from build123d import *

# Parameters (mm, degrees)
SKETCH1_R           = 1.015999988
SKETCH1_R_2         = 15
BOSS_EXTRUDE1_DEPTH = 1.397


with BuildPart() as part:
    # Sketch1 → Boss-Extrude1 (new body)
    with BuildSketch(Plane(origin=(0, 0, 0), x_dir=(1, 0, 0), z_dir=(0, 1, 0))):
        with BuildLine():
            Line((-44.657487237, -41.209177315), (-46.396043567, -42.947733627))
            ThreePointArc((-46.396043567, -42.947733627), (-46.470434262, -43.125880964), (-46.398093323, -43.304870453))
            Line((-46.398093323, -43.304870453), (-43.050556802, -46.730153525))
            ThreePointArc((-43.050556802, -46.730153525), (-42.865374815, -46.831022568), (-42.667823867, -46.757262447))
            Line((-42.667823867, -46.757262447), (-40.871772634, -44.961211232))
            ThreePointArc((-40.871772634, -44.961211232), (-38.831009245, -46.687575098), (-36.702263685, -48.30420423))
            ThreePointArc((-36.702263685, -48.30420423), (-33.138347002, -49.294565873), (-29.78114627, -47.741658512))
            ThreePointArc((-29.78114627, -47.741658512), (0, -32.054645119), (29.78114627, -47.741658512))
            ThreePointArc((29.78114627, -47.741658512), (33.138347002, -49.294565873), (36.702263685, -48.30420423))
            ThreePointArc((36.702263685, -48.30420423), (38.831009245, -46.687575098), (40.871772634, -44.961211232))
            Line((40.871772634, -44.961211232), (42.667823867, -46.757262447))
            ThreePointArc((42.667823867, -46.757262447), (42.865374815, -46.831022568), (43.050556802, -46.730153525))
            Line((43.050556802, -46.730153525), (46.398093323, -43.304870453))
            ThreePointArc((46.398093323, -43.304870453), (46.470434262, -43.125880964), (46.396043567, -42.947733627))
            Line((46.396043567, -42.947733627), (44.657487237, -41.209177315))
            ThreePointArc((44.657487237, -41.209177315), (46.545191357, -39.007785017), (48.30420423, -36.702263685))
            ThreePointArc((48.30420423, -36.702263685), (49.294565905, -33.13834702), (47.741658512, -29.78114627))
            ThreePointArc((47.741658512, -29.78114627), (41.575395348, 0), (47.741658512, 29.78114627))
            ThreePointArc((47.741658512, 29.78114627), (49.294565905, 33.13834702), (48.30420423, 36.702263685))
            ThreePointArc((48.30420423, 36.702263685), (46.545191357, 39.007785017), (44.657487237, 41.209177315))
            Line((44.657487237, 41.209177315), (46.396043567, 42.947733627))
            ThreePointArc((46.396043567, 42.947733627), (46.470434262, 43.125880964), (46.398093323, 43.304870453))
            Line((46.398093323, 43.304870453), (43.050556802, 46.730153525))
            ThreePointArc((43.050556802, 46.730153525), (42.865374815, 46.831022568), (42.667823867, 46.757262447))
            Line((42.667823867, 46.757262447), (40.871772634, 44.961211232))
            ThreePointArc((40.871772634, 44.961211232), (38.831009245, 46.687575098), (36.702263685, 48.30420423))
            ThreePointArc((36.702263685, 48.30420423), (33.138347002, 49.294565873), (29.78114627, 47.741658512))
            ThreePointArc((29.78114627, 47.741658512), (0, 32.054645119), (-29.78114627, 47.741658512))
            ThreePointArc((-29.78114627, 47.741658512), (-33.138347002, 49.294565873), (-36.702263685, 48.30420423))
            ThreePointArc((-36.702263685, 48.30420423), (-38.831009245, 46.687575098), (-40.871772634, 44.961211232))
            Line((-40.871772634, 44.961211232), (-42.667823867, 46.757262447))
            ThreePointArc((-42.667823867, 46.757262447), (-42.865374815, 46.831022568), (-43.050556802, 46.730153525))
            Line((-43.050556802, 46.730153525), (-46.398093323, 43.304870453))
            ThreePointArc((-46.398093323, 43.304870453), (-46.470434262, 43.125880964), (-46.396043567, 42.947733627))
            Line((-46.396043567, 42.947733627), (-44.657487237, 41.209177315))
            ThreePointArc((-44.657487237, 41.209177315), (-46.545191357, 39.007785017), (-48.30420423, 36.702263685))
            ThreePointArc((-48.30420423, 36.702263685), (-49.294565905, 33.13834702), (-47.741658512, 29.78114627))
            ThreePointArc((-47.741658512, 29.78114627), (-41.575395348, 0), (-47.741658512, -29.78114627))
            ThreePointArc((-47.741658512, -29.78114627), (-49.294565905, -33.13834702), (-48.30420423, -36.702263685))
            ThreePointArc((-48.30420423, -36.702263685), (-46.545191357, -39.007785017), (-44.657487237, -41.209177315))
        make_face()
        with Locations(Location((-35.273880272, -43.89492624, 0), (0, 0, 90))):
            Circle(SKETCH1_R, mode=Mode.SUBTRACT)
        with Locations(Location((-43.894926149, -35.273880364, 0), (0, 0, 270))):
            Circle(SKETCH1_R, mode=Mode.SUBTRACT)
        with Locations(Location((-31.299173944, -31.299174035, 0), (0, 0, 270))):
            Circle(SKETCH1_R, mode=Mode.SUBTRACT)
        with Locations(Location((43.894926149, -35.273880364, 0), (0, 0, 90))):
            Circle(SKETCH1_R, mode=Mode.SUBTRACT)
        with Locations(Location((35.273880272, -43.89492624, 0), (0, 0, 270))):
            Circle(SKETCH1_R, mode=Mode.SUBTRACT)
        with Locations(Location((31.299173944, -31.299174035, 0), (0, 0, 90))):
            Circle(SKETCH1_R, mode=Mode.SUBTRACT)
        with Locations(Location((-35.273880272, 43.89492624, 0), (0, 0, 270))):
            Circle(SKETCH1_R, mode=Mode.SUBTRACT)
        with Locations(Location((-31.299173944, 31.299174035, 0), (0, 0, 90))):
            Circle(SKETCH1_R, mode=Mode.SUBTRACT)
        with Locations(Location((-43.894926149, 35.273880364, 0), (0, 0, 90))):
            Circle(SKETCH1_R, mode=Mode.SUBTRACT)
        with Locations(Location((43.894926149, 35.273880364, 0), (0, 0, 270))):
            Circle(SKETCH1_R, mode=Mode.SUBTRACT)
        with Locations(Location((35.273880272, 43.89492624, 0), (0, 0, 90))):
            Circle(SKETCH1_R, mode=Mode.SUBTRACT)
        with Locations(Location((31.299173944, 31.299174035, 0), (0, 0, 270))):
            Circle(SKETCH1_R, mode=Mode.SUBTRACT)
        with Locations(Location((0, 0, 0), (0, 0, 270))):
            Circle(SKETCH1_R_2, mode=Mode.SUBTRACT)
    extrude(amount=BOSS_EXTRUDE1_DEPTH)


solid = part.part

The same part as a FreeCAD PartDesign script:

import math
import FreeCAD as App
import Part
import Sketcher
from FreeCAD import Vector
Q = App.Units.Quantity

doc = App.newDocument("Part")
body = doc.addObject("PartDesign::Body", "Body")

# Sketch on XZ plane
sketch1 = body.newObject("Sketcher::SketchObject", "Sketch")
sketch1.AttachmentSupport = (doc.getObject("XZ_Plane"), [""])
sketch1.MapMode = "FlatFace"
sketch1.addGeometry([
    Part.LineSegment(Vector(-44.66, 41.21, 0), Vector(-46.4, 42.95, 0)),  # 0
    Part.ArcOfCircle(Part.Circle(Vector(-46.22, 43.13, 0), Vector(0, 0, 1), 0.25), math.radians(136), math.radians(225)),  # 1
    Part.LineSegment(Vector(-46.4, 43.3, 0), Vector(-43.05, 46.73, 0)),  # 2
    Part.ArcOfCircle(Part.Circle(Vector(-42.85, 46.58, 0), Vector(0, 0, 1), 0.25), math.radians(45), math.radians(143)),  # 3
    Part.LineSegment(Vector(-42.67, 46.76, 0), Vector(-40.87, 44.96, 0)),  # 4
    Part.ArcOfCircle(Part.Circle(Vector(-7.05, 7.05, 0), Vector(0, 0, 1), 50.8), math.radians(125.71), math.radians(131.74)),  # 5
    Part.ArcOfCircle(Part.Circle(Vector(-33.57, 43.95, 0), Vector(0, 0, 1), 5.36), math.radians(45), math.radians(126)),  # 6
    Part.ArcOfCircle(Part.Circle(Vector(0, 68.17, 0), Vector(0, 0, 1), 36.11), math.radians(-146), math.radians(-34)),  # 7
    Part.ArcOfCircle(Part.Circle(Vector(33.57, 43.95, 0), Vector(0, 0, 1), 5.36), math.radians(54), math.radians(135)),  # 8
    Part.ArcOfCircle(Part.Circle(Vector(7.05, 7.05, 0), Vector(0, 0, 1), 50.8), math.radians(48.26), math.radians(54.29)),  # 9
    Part.LineSegment(Vector(40.87, 44.96, 0), Vector(42.67, 46.76, 0)),  # 10
    Part.ArcOfCircle(Part.Circle(Vector(42.85, 46.58, 0), Vector(0, 0, 1), 0.25), math.radians(37), math.radians(135)),  # 11
    Part.LineSegment(Vector(43.05, 46.73, 0), Vector(46.4, 43.3, 0)),  # 12
    Part.ArcOfCircle(Part.Circle(Vector(46.22, 43.13, 0), Vector(0, 0, 1), 0.25), math.radians(-45), math.radians(44)),  # 13
    Part.LineSegment(Vector(46.4, 42.95, 0), Vector(44.66, 41.21, 0)),  # 14
    Part.ArcOfCircle(Part.Circle(Vector(7.05, 7.05, 0), Vector(0, 0, 1), 50.8), math.radians(35.71), math.radians(42.25)),  # 15
    Part.ArcOfCircle(Part.Circle(Vector(43.95, 33.57, 0), Vector(0, 0, 1), 5.36), math.radians(-45), math.radians(36)),  # 16
    Part.ArcOfCircle(Part.Circle(Vector(116.58, 0, 0), Vector(0, 0, 1), 75), math.radians(157), math.radians(203)),  # 17
    Part.ArcOfCircle(Part.Circle(Vector(43.95, -33.57, 0), Vector(0, 0, 1), 5.36), math.radians(-36), math.radians(45)),  # 18
    Part.ArcOfCircle(Part.Circle(Vector(7.05, -7.05, 0), Vector(0, 0, 1), 50.8), math.radians(-42.25), math.radians(-35.71)),  # 19
    Part.LineSegment(Vector(44.66, -41.21, 0), Vector(46.4, -42.95, 0)),  # 20
    Part.ArcOfCircle(Part.Circle(Vector(46.22, -43.13, 0), Vector(0, 0, 1), 0.25), math.radians(-44), math.radians(45)),  # 21
    Part.LineSegment(Vector(46.4, -43.3, 0), Vector(43.05, -46.73, 0)),  # 22
    Part.ArcOfCircle(Part.Circle(Vector(42.85, -46.58, 0), Vector(0, 0, 1), 0.25), math.radians(-135), math.radians(-37)),  # 23
    Part.LineSegment(Vector(42.67, -46.76, 0), Vector(40.87, -44.96, 0)),  # 24
    Part.ArcOfCircle(Part.Circle(Vector(7.05, -7.05, 0), Vector(0, 0, 1), 50.8), math.radians(-54.29), math.radians(-48.26)),  # 25
    Part.ArcOfCircle(Part.Circle(Vector(33.57, -43.95, 0), Vector(0, 0, 1), 5.36), math.radians(-135), math.radians(-54)),  # 26
    Part.ArcOfCircle(Part.Circle(Vector(0, -68.17, 0), Vector(0, 0, 1), 36.11), math.radians(34), math.radians(146)),  # 27
    Part.ArcOfCircle(Part.Circle(Vector(-33.57, -43.95, 0), Vector(0, 0, 1), 5.36), math.radians(-126), math.radians(-45)),  # 28
    Part.ArcOfCircle(Part.Circle(Vector(-7.05, -7.05, 0), Vector(0, 0, 1), 50.8), math.radians(-131.74), math.radians(-125.71)),  # 29
    Part.LineSegment(Vector(-40.87, -44.96, 0), Vector(-42.67, -46.76, 0)),  # 30
    Part.ArcOfCircle(Part.Circle(Vector(-42.85, -46.58, 0), Vector(0, 0, 1), 0.25), math.radians(-143), math.radians(-45)),  # 31
    Part.LineSegment(Vector(-43.05, -46.73, 0), Vector(-46.4, -43.3, 0)),  # 32
    Part.ArcOfCircle(Part.Circle(Vector(-46.22, -43.13, 0), Vector(0, 0, 1), 0.25), math.radians(135), math.radians(224)),  # 33
    Part.LineSegment(Vector(-46.4, -42.95, 0), Vector(-44.66, -41.21, 0)),  # 34
    Part.ArcOfCircle(Part.Circle(Vector(-7.05, -7.05, 0), Vector(0, 0, 1), 50.8), math.radians(-144.29), math.radians(-137.75)),  # 35
    Part.ArcOfCircle(Part.Circle(Vector(-43.95, -33.57, 0), Vector(0, 0, 1), 5.36), math.radians(135), math.radians(216)),  # 36
    Part.ArcOfCircle(Part.Circle(Vector(-116.58, 0, 0), Vector(0, 0, 1), 75), math.radians(-23), math.radians(23)),  # 37
    Part.ArcOfCircle(Part.Circle(Vector(-43.95, 33.57, 0), Vector(0, 0, 1), 5.36), math.radians(144), math.radians(225)),  # 38
    Part.ArcOfCircle(Part.Circle(Vector(-7.05, 7.05, 0), Vector(0, 0, 1), 50.8), math.radians(137.75), math.radians(144.29)),  # 39
    Part.Circle(Vector(-35.27, 43.89, 0), Vector(0, 0, 1), 1.02),  # 40
    Part.Circle(Vector(-43.89, 35.27, 0), Vector(0, 0, 1), 1.02),  # 41
    Part.Circle(Vector(-31.3, 31.3, 0), Vector(0, 0, 1), 1.02),  # 42
    Part.Circle(Vector(35.27, 43.89, 0), Vector(0, 0, 1), 1.02),  # 43
    Part.Circle(Vector(43.89, 35.27, 0), Vector(0, 0, 1), 1.02),  # 44
    Part.Circle(Vector(31.3, 31.3, 0), Vector(0, 0, 1), 1.02),  # 45
    Part.Circle(Vector(-31.3, -31.3, 0), Vector(0, 0, 1), 1.02),  # 46
    Part.Circle(Vector(-43.89, -35.27, 0), Vector(0, 0, 1), 1.02),  # 47
    Part.Circle(Vector(-35.27, -43.89, 0), Vector(0, 0, 1), 1.02),  # 48
    Part.Circle(Vector(0, 0, 0), Vector(0, 0, 1), 15),  # 49
    Part.Circle(Vector(31.3, -31.3, 0), Vector(0, 0, 1), 1.02),  # 50
    Part.Circle(Vector(43.89, -35.27, 0), Vector(0, 0, 1), 1.02),  # 51
    Part.Circle(Vector(35.27, -43.89, 0), Vector(0, 0, 1), 1.02),  # 52
], False)
sketch1.addConstraint([
    Sketcher.Constraint("Tangent", 0, 2, 1, 2),
    Sketcher.Constraint("Tangent", 1, 1, 2, 1),
    Sketcher.Constraint("Coincident", 2, 2, 3, 2),
    Sketcher.Constraint("Tangent", 3, 1, 4, 1),
    Sketcher.Constraint("Coincident", 4, 2, 5, 2),
    Sketcher.Constraint("Tangent", 5, 1, 6, 2),
    Sketcher.Constraint("Coincident", 6, 1, 7, 1),
    Sketcher.Constraint("Coincident", 7, 2, 8, 2),
    Sketcher.Constraint("Tangent", 8, 1, 9, 2),
    Sketcher.Constraint("Coincident", 9, 1, 10, 1),
    Sketcher.Constraint("Tangent", 10, 2, 11, 2),
    Sketcher.Constraint("Coincident", 11, 1, 12, 1),
    Sketcher.Constraint("Tangent", 12, 2, 13, 2),
    Sketcher.Constraint("Tangent", 13, 1, 14, 1),
    Sketcher.Constraint("Coincident", 14, 2, 15, 2),
    Sketcher.Constraint("Tangent", 15, 1, 16, 2),
    Sketcher.Constraint("Coincident", 16, 1, 17, 1),
    Sketcher.Constraint("Coincident", 17, 2, 18, 2),
    Sketcher.Constraint("Tangent", 18, 1, 19, 2),
    Sketcher.Constraint("Coincident", 19, 1, 20, 1),
    Sketcher.Constraint("Tangent", 20, 2, 21, 2),
    Sketcher.Constraint("Tangent", 21, 1, 22, 1),
    Sketcher.Constraint("Coincident", 22, 2, 23, 2),
    Sketcher.Constraint("Tangent", 23, 1, 24, 1),
    Sketcher.Constraint("Coincident", 24, 2, 25, 2),
    Sketcher.Constraint("Tangent", 25, 1, 26, 2),
    Sketcher.Constraint("Coincident", 26, 1, 27, 1),
    Sketcher.Constraint("Coincident", 27, 2, 28, 2),
    Sketcher.Constraint("Tangent", 28, 1, 29, 2),
    Sketcher.Constraint("Coincident", 29, 1, 30, 1),
    Sketcher.Constraint("Tangent", 30, 2, 31, 2),
    Sketcher.Constraint("Coincident", 31, 1, 32, 1),
    Sketcher.Constraint("Tangent", 32, 2, 33, 2),
    Sketcher.Constraint("Tangent", 33, 1, 34, 1),
    Sketcher.Constraint("Coincident", 34, 2, 35, 2),
    Sketcher.Constraint("Tangent", 35, 1, 36, 2),
    Sketcher.Constraint("Coincident", 36, 1, 37, 1),
    Sketcher.Constraint("Coincident", 37, 2, 38, 2),
    Sketcher.Constraint("Tangent", 38, 1, 39, 2),
    Sketcher.Constraint("Coincident", 39, 1, 0, 1),
    Sketcher.Constraint("Coincident", 49, 3, -1, 1),
    Sketcher.Constraint("Coincident", 15, 3, 9, 3),
    Sketcher.Constraint("Coincident", 25, 3, 19, 3),
    Sketcher.Constraint("Coincident", 35, 3, 29, 3),
    Sketcher.Constraint("Coincident", 39, 3, 5, 3),
    Sketcher.Constraint("Equal", 1, 3),
    Sketcher.Constraint("Equal", 6, 8),
    Sketcher.Constraint("Equal", 5, 9),
    Sketcher.Constraint("Equal", 3, 11),
    Sketcher.Constraint("Equal", 11, 13),
    Sketcher.Constraint("Equal", 9, 15),
    Sketcher.Constraint("Equal", 8, 16),
    Sketcher.Constraint("Equal", 16, 18),
    Sketcher.Constraint("Equal", 15, 19),
    Sketcher.Constraint("Equal", 13, 21),
    Sketcher.Constraint("Equal", 21, 23),
    Sketcher.Constraint("Equal", 19, 25),
    Sketcher.Constraint("Equal", 18, 26),
    Sketcher.Constraint("Equal", 7, 27),
    Sketcher.Constraint("Equal", 26, 28),
    Sketcher.Constraint("Equal", 25, 29),
    Sketcher.Constraint("Equal", 23, 31),
    Sketcher.Constraint("Equal", 31, 33),
    Sketcher.Constraint("Equal", 29, 35),
    Sketcher.Constraint("Equal", 28, 36),
    Sketcher.Constraint("Equal", 17, 37),
    Sketcher.Constraint("Equal", 36, 38),
    Sketcher.Constraint("Equal", 35, 39),
    Sketcher.Constraint("Equal", 40, 41),
    Sketcher.Constraint("Equal", 41, 42),
    Sketcher.Constraint("Equal", 42, 43),
    Sketcher.Constraint("Equal", 43, 44),
    Sketcher.Constraint("Equal", 44, 45),
    Sketcher.Constraint("Equal", 45, 46),
    Sketcher.Constraint("Equal", 46, 47),
    Sketcher.Constraint("Equal", 47, 48),
    Sketcher.Constraint("Equal", 48, 50),
    Sketcher.Constraint("Equal", 50, 51),
    Sketcher.Constraint("Equal", 51, 52),
    Sketcher.Constraint("Symmetric", 5, 3, 19, 3, -1, 1),
    Sketcher.Constraint("Symmetric", 1, 3, 21, 3, -1, 1),
    Sketcher.Constraint("Symmetric", 3, 3, 23, 3, -1, 1),
    Sketcher.Constraint("Symmetric", 7, 3, 27, 3, -1, 1),
    Sketcher.Constraint("Symmetric", 8, 3, 28, 3, -1, 1),
    Sketcher.Constraint("Symmetric", 11, 3, 31, 3, -1, 1),
    Sketcher.Constraint("Symmetric", 13, 3, 33, 3, -1, 1),
    Sketcher.Constraint("Symmetric", 16, 3, 36, 3, -1, 1),
    Sketcher.Constraint("Symmetric", 17, 3, 37, 3, -1, 1),
    Sketcher.Constraint("Symmetric", 45, 3, 46, 3, -1, 1),
    Sketcher.Constraint("Symmetric", 44, 3, 47, 3, -1, 1),
    Sketcher.Constraint("Symmetric", 43, 3, 48, 3, -1, 1),
    Sketcher.Constraint("Symmetric", 42, 3, 50, 3, -1, 1),
    Sketcher.Constraint("Symmetric", 41, 3, 51, 3, -1, 1),
    Sketcher.Constraint("Symmetric", 40, 3, 52, 3, -1, 1),
    Sketcher.Constraint("Symmetric", 6, 3, 8, 3, -2),
    Sketcher.Constraint("Symmetric", 3, 3, 11, 3, -2),
    Sketcher.Constraint("Symmetric", 1, 3, 13, 3, -2),
    Sketcher.Constraint("Symmetric", 18, 3, 36, 3, -2),
    Sketcher.Constraint("Symmetric", 40, 3, 43, 3, -2),
    Sketcher.Constraint("Symmetric", 41, 3, 44, 3, -2),
    Sketcher.Constraint("Symmetric", 42, 3, 45, 3, -2),
    Sketcher.Constraint("Symmetric", 26, 1, 27, 2, -2),
    Sketcher.Constraint("Symmetric", 16, 1, 37, 2, -2),
    Sketcher.Constraint("Parallel", 0, 4),
    Sketcher.Constraint("Perpendicular", 4, 10),
    Sketcher.Constraint("Parallel", 10, 14),
    Sketcher.Constraint("Perpendicular", 14, 20),
    Sketcher.Constraint("Parallel", 2, 22),
    Sketcher.Constraint("Parallel", 20, 24),
    Sketcher.Constraint("Perpendicular", 24, 30),
    Sketcher.Constraint("Parallel", 12, 32),
    Sketcher.Constraint("Parallel", 30, 34),
    Sketcher.Constraint("Horizontal", 4, 2, 9, 1),
    Sketcher.Constraint("Horizontal", 2, 2, 11, 1),
    Sketcher.Constraint("Radius", 5, Q("2 in")),
    Sketcher.Constraint("Diameter", 40, Q("0.08 in")),
    Sketcher.Constraint("Radius", 1, Q("0.01 in")),
    Sketcher.Constraint("Distance", 4, Q("0.1 in")),
    Sketcher.Constraint("Diameter", 49, 30.0),
    Sketcher.Constraint("Radius", 17, 75.0),
    Sketcher.Constraint("Radius", 6, 5.362133),
    Sketcher.Constraint("Radius", 7, 36.112644),
    Sketcher.Constraint("Distance", 0, 2.45869),
    Sketcher.Constraint("DistanceX", 1, 3, -1, 1, 46.216438),
    Sketcher.Constraint("DistanceY", -1, 1, 1, 3, 43.127339),
    Sketcher.Constraint("DistanceX", 3, 3, -1, 1, 42.847429),
    Sketcher.Constraint("DistanceX", 5, 3, -1, 1, 7.05371),
    Sketcher.Constraint("DistanceY", -1, 1, 6, 3, 43.950058),
    Sketcher.Constraint("DistanceY", -1, 1, 7, 3, 68.167289),
    Sketcher.Constraint("DistanceX", -1, 1, 16, 3, 43.950058),
    Sketcher.Constraint("DistanceX", 40, 3, -1, 1, 35.27388),
    Sketcher.Constraint("DistanceY", -1, 1, 41, 3, 35.27388),
    Sketcher.Constraint("DistanceX", -1, 1, 16, 1, 47.741659),
    Sketcher.Constraint("Distance", 2, 4.789422),
    Sketcher.Constraint("DistanceY", -1, 1, 40, 3, 43.894926),
    Sketcher.Constraint("DistanceX", 41, 3, -1, 1, 43.894926),
    Sketcher.Constraint("DistanceX", 42, 3, -1, 1, 31.299174),
    Sketcher.Constraint("DistanceY", -1, 1, 42, 3, 31.299174),
])
pad1 = body.newObject("PartDesign::Pad", "Pad")
pad1.Profile = sketch1
pad1.Length = Q("0.055 in")
pad1.Reversed = True

doc.recompute()
